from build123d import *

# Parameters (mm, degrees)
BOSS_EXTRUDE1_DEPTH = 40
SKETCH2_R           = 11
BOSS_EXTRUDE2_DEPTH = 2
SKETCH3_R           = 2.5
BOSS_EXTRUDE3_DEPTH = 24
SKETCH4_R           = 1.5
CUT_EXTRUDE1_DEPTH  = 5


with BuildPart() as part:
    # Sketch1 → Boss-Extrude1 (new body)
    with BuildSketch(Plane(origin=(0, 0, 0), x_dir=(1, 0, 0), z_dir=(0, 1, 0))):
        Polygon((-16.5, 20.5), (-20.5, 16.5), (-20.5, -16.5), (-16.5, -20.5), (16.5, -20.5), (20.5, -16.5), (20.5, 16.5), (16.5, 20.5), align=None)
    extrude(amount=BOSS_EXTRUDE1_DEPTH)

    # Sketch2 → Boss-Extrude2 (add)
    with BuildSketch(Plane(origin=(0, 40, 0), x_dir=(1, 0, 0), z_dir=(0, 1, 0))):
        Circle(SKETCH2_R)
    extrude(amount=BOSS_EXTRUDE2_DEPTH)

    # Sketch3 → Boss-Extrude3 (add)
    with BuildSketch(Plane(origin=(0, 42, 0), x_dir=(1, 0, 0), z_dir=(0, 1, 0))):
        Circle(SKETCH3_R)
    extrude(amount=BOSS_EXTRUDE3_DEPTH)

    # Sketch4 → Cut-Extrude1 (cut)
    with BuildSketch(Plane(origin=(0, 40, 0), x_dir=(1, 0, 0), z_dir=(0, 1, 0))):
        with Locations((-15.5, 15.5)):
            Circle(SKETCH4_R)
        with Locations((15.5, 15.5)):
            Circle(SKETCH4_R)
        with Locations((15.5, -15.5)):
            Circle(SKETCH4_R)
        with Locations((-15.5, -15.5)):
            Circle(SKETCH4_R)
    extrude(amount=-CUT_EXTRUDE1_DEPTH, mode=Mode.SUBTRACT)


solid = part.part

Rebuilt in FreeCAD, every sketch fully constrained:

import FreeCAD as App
import Part
import Sketcher


def add_polygon(sketch, points):
    """Adds a closed chain of lines whose ends are joined by coincident constraints."""
    first, n = sketch.GeometryCount, len(points)
    for a, b in zip(points, points[1:] + points[:1]):
        sketch.addGeometry(Part.LineSegment(App.Vector(*a, 0), App.Vector(*b, 0)), False)
    for i in range(n):
        sketch.addConstraint(Sketcher.Constraint("Coincident", first + i, 2, first + (i + 1) % n, 1))

doc = App.newDocument("Part")
body = doc.addObject("PartDesign::Body", "Body")

# Sketch on XZ plane
sketch1 = doc.addObject("Sketcher::SketchObject", "Sketch")
body.addObject(sketch1)
sketch1.AttachmentSupport = (doc.XZ_Plane, [""])
sketch1.MapMode = "FlatFace"
add_polygon(sketch1, [(-16.5, -20.5), (-20.5, -16.5), (-20.5, 16.5), (-16.5, 20.5), (16.5, 20.5), (20.5, 16.5), (20.5, -16.5), (16.5, -20.5)])  # lines 0-7
sketch1.addConstraint([
    Sketcher.Constraint("Vertical", 1),
    Sketcher.Constraint("Horizontal", 3),
    Sketcher.Constraint("Vertical", 5),
    Sketcher.Constraint("Horizontal", 7),
    Sketcher.Constraint("Symmetric", 0, 2, 4, 2, -1, 1),
    Sketcher.Constraint("Symmetric", 2, 2, 6, 2, -1, 1),
    Sketcher.Constraint("Perpendicular", 0, 2),
    Sketcher.Constraint("Perpendicular", 2, 4),
    Sketcher.Constraint("Perpendicular", 4, 6),
    Sketcher.Constraint("Horizontal", 1, 2, 4, 2),
    Sketcher.Constraint("Vertical", 3, 2, 6, 2),
    Sketcher.Constraint("Equal", 7, 1),
    Sketcher.Constraint("DistanceX", 3, 1, 3, 2, 33.0),
    Sketcher.Constraint("DistanceX", 1, 2, 2, 2, 4.0),
])
pad1 = doc.addObject("PartDesign::Pad", "Pad")
body.addObject(pad1)
pad1.Profile = sketch1
pad1.Length = 40
pad1.Reversed = True

# Sketch on XZ plane
sketch2 = doc.addObject("Sketcher::SketchObject", "Sketch001")
body.addObject(sketch2)
sketch2.AttachmentSupport = (doc.XZ_Plane, [""])
sketch2.MapMode = "FlatFace"
sketch2.AttachmentOffset = App.Placement(App.Vector(0, 0, -40), App.Rotation())
sketch2.addGeometry(Part.Circle(App.Vector(0, 0, 0), App.Vector(0, 0, 1), 11), False)
sketch2.addConstraint([
    Sketcher.Constraint("Coincident", 0, 3, -1, 1),
    Sketcher.Constraint("Diameter", 0, 22.0),
])
pad2 = doc.addObject("PartDesign::Pad", "Pad001")
body.addObject(pad2)
pad2.Profile = sketch2
pad2.Length = 2
pad2.Reversed = True

# Sketch on XZ plane
sketch3 = doc.addObject("Sketcher::SketchObject", "Sketch002")
body.addObject(sketch3)
sketch3.AttachmentSupport = (doc.XZ_Plane, [""])
sketch3.MapMode = "FlatFace"
sketch3.AttachmentOffset = App.Placement(App.Vector(0, 0, -42), App.Rotation())
sketch3.addGeometry(Part.Circle(App.Vector(0, 0, 0), App.Vector(0, 0, 1), 2.5), False)
sketch3.addConstraint([
    Sketcher.Constraint("Coincident", 0, 3, -1, 1),
    Sketcher.Constraint("Diameter", 0, 5.0),
])
pad3 = doc.addObject("PartDesign::Pad", "Pad002")
body.addObject(pad3)
pad3.Profile = sketch3
pad3.Length = 24
pad3.Reversed = True

# Sketch on XZ plane
sketch4 = doc.addObject("Sketcher::SketchObject", "Sketch003")
body.addObject(sketch4)
sketch4.AttachmentSupport = (doc.XZ_Plane, [""])
sketch4.MapMode = "FlatFace"
sketch4.AttachmentOffset = App.Placement(App.Vector(0, 0, -40), App.Rotation())
sketch4.addGeometry([
    Part.Circle(App.Vector(-15.5, -15.5, 0), App.Vector(0, 0, 1), 1.5),
    Part.Circle(App.Vector(15.5, -15.5, 0), App.Vector(0, 0, 1), 1.5),
    Part.Circle(App.Vector(15.5, 15.5, 0), App.Vector(0, 0, 1), 1.5),
    Part.Circle(App.Vector(-15.5, 15.5, 0), App.Vector(0, 0, 1), 1.5),
], False)
sketch4.addConstraint([
    Sketcher.Constraint("Equal", 0, 1),
    Sketcher.Constraint("Equal", 1, 2),
    Sketcher.Constraint("Equal", 2, 3),
    Sketcher.Constraint("Symmetric", 0, 3, 2, 3, -1, 1),
    Sketcher.Constraint("Symmetric", 1, 3, 3, 3, -1, 1),
    Sketcher.Constraint("Symmetric", 0, 3, 1, 3, -2),
    Sketcher.Constraint("Diameter", 0, 3.0),
    Sketcher.Constraint("DistanceX", 0, 3, 1, 3, 31.0),
    Sketcher.Constraint("DistanceY", 1, 3, 2, 3, 31.0),
])
pocket1 = doc.addObject("PartDesign::Pocket", "Pocket")
body.addObject(pocket1)
pocket1.Profile = sketch4
pocket1.Length = 5
pocket1.Reversed = True

doc.recompute()
